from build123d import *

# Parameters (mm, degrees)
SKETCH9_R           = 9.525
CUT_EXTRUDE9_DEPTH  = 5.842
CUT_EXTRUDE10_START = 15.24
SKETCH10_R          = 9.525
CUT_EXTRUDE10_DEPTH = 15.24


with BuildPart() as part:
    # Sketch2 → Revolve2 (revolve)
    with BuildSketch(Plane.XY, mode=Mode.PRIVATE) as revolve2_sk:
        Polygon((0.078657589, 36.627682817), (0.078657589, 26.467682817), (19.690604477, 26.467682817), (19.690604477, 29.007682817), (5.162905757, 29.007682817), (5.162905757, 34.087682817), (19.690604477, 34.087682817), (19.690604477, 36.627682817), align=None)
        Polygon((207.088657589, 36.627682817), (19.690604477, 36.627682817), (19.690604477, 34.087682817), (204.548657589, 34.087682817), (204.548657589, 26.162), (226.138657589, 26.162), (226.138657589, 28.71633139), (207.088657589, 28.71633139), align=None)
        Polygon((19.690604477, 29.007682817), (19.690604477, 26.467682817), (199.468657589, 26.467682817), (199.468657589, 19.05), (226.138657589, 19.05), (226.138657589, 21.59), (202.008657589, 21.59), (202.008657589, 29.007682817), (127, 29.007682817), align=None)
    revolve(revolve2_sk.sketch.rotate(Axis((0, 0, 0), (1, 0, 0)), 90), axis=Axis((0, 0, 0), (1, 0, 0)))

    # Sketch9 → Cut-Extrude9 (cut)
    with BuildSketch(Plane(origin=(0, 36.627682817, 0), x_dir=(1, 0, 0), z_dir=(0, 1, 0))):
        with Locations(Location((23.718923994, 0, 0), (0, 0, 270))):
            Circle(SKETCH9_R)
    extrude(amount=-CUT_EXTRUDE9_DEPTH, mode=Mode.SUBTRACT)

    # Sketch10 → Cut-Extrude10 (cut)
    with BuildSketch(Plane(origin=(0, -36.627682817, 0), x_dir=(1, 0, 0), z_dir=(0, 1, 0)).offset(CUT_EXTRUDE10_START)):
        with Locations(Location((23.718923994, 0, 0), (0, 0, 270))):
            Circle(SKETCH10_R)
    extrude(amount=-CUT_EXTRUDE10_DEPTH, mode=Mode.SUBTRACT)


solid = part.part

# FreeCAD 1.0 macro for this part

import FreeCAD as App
import Part
import Sketcher
from FreeCAD import Vector
Q = App.Units.Quantity


def add_polygon(sketch, points):
    """Adds a closed chain of lines whose ends are joined by coincident constraints."""
    first, n = sketch.GeometryCount, len(points)
    for a, b in zip(points, points[1:] + points[:1]):
        sketch.addGeometry(Part.LineSegment(App.Vector(*a, 0), App.Vector(*b, 0)), False)
    for i in range(n):
        sketch.addConstraint(Sketcher.Constraint("Coincident", first + i, 2, first + (i + 1) % n, 1))

doc = App.newDocument("Part")
body = doc.addObject("PartDesign::Body", "Body")

# Sketch on XY plane
sketch1 = body.newObject("Sketcher::SketchObject", "Sketch")
sketch1.AttachmentSupport = (doc.getObject("XY_Plane"), [""])
sketch1.MapMode = "FlatFace"
add_polygon(sketch1, [(0.078658, 36.627683), (0.078658, 26.467683), (199.468658, 26.467683), (199.468658, 19.05), (226.138658, 19.05), (226.138658, 21.59), (202.008658, 21.59), (202.008658, 29.007683), (5.162906, 29.007683), (5.162906, 34.087683), (204.548658, 34.087683), (204.548658, 26.162), (226.138658, 26.162), (226.138658, 28.716331), (207.088658, 28.716331), (207.088658, 36.627683)])  # lines 0-15
sketch1.addConstraint([
    Sketcher.Constraint("Vertical", 0),
    Sketcher.Constraint("Horizontal", 1),
    Sketcher.Constraint("Vertical", 2),
    Sketcher.Constraint("Horizontal", 3),
    Sketcher.Constraint("Vertical", 4),
    Sketcher.Constraint("Horizontal", 5),
    Sketcher.Constraint("Vertical", 6),
    Sketcher.Constraint("Horizontal", 7),
    Sketcher.Constraint("Vertical", 8),
    Sketcher.Constraint("Horizontal", 9),
    Sketcher.Constraint("Vertical", 10),
    Sketcher.Constraint("Horizontal", 11),
    Sketcher.Constraint("Vertical", 12),
    Sketcher.Constraint("Horizontal", 13),
    Sketcher.Constraint("Vertical", 14),
    Sketcher.Constraint("Horizontal", 15),
    Sketcher.Constraint("Vertical", 4, 2, 11, 2),
    Sketcher.Constraint("Equal", 2, 6),
    Sketcher.Constraint("DistanceY", 0, 2, 0, 1, Q("0.4 in")),
    Sketcher.Constraint("DistanceY", 4, 1, 4, 2, Q("0.1 in")),
    Sketcher.Constraint("DistanceY", 8, 1, 8, 2, Q("0.2 in")),
    Sketcher.Constraint("DistanceX", 1, 1, 1, 2, Q("7.85 in")),
    Sketcher.Constraint("DistanceX", 3, 1, 3, 2, Q("1.05 in")),
    Sketcher.Constraint("DistanceX", 5, 2, 5, 1, Q("0.95 in")),
    Sketcher.Constraint("DistanceX", 11, 1, 11, 2, Q("0.85 in")),
    Sketcher.Constraint("DistanceX", 13, 2, 13, 1, Q("0.75 in")),
    Sketcher.Constraint("DistanceY", -1, 1, 2, 2, Q("0.75 in")),
    Sketcher.Constraint("DistanceY", -1, 1, 10, 2, Q("1.03 in")),
    Sketcher.Constraint("DistanceX", 7, 2, 7, 1, 196.845752),
    Sketcher.Constraint("DistanceY", 12, 1, 12, 2, 2.554331),
    Sketcher.Constraint("DistanceY", 14, 1, 14, 2, 7.911351),
    Sketcher.Constraint("DistanceX", -1, 1, 0, 2, 0.078658),
])
revolution = body.newObject("PartDesign::Revolution", "Revolution")
revolution.Profile = sketch1
revolution.ReferenceAxis = (sketch1, ["H_Axis"])
revolution.Angle = 360

# Sketch on XZ plane
sketch2 = body.newObject("Sketcher::SketchObject", "Sketch001")
sketch2.AttachmentSupport = (doc.getObject("XZ_Plane"), [""])
sketch2.MapMode = "FlatFace"
sketch2.AttachmentOffset = App.Placement(Vector(0, 0, -36.627683), App.Rotation())
sketch2.addGeometry(Part.Circle(Vector(23.718924, 0, 0), Vector(0, 0, 1), 9.525), False)
sketch2.addConstraint([
    Sketcher.Constraint("PointOnObject", 0, 3, -1),
    Sketcher.Constraint("Diameter", 0, Q("0.75 in")),
    Sketcher.Constraint("DistanceX", -1, 1, 0, 3, 23.718924),
])
pocket1 = body.newObject("PartDesign::Pocket", "Pocket")
pocket1.Profile = sketch2
pocket1.Length = Q("0.23 in")
pocket1.Reversed = True

# Sketch on XZ plane
sketch3 = body.newObject("Sketcher::SketchObject", "Sketch002")
sketch3.AttachmentSupport = (doc.getObject("XZ_Plane"), [""])
sketch3.MapMode = "FlatFace"
sketch3.AttachmentOffset = App.Placement(Vector(0, 0, 21.387683), App.Rotation())
sketch3.addGeometry(Part.Circle(Vector(23.718924, 0, 0), Vector(0, 0, 1), 9.525), False)
sketch3.addConstraint([
    Sketcher.Constraint("PointOnObject", 0, 3, -1),
    Sketcher.Constraint("Diameter", 0, Q("0.75 in")),
    Sketcher.Constraint("DistanceX", -1, 1, 0, 3, 23.718924),
])
pocket2 = body.newObject("PartDesign::Pocket", "Pocket001")
pocket2.Profile = sketch3
pocket2.Length = Q("0.6 in")
pocket2.Reversed = True

doc.recompute()
